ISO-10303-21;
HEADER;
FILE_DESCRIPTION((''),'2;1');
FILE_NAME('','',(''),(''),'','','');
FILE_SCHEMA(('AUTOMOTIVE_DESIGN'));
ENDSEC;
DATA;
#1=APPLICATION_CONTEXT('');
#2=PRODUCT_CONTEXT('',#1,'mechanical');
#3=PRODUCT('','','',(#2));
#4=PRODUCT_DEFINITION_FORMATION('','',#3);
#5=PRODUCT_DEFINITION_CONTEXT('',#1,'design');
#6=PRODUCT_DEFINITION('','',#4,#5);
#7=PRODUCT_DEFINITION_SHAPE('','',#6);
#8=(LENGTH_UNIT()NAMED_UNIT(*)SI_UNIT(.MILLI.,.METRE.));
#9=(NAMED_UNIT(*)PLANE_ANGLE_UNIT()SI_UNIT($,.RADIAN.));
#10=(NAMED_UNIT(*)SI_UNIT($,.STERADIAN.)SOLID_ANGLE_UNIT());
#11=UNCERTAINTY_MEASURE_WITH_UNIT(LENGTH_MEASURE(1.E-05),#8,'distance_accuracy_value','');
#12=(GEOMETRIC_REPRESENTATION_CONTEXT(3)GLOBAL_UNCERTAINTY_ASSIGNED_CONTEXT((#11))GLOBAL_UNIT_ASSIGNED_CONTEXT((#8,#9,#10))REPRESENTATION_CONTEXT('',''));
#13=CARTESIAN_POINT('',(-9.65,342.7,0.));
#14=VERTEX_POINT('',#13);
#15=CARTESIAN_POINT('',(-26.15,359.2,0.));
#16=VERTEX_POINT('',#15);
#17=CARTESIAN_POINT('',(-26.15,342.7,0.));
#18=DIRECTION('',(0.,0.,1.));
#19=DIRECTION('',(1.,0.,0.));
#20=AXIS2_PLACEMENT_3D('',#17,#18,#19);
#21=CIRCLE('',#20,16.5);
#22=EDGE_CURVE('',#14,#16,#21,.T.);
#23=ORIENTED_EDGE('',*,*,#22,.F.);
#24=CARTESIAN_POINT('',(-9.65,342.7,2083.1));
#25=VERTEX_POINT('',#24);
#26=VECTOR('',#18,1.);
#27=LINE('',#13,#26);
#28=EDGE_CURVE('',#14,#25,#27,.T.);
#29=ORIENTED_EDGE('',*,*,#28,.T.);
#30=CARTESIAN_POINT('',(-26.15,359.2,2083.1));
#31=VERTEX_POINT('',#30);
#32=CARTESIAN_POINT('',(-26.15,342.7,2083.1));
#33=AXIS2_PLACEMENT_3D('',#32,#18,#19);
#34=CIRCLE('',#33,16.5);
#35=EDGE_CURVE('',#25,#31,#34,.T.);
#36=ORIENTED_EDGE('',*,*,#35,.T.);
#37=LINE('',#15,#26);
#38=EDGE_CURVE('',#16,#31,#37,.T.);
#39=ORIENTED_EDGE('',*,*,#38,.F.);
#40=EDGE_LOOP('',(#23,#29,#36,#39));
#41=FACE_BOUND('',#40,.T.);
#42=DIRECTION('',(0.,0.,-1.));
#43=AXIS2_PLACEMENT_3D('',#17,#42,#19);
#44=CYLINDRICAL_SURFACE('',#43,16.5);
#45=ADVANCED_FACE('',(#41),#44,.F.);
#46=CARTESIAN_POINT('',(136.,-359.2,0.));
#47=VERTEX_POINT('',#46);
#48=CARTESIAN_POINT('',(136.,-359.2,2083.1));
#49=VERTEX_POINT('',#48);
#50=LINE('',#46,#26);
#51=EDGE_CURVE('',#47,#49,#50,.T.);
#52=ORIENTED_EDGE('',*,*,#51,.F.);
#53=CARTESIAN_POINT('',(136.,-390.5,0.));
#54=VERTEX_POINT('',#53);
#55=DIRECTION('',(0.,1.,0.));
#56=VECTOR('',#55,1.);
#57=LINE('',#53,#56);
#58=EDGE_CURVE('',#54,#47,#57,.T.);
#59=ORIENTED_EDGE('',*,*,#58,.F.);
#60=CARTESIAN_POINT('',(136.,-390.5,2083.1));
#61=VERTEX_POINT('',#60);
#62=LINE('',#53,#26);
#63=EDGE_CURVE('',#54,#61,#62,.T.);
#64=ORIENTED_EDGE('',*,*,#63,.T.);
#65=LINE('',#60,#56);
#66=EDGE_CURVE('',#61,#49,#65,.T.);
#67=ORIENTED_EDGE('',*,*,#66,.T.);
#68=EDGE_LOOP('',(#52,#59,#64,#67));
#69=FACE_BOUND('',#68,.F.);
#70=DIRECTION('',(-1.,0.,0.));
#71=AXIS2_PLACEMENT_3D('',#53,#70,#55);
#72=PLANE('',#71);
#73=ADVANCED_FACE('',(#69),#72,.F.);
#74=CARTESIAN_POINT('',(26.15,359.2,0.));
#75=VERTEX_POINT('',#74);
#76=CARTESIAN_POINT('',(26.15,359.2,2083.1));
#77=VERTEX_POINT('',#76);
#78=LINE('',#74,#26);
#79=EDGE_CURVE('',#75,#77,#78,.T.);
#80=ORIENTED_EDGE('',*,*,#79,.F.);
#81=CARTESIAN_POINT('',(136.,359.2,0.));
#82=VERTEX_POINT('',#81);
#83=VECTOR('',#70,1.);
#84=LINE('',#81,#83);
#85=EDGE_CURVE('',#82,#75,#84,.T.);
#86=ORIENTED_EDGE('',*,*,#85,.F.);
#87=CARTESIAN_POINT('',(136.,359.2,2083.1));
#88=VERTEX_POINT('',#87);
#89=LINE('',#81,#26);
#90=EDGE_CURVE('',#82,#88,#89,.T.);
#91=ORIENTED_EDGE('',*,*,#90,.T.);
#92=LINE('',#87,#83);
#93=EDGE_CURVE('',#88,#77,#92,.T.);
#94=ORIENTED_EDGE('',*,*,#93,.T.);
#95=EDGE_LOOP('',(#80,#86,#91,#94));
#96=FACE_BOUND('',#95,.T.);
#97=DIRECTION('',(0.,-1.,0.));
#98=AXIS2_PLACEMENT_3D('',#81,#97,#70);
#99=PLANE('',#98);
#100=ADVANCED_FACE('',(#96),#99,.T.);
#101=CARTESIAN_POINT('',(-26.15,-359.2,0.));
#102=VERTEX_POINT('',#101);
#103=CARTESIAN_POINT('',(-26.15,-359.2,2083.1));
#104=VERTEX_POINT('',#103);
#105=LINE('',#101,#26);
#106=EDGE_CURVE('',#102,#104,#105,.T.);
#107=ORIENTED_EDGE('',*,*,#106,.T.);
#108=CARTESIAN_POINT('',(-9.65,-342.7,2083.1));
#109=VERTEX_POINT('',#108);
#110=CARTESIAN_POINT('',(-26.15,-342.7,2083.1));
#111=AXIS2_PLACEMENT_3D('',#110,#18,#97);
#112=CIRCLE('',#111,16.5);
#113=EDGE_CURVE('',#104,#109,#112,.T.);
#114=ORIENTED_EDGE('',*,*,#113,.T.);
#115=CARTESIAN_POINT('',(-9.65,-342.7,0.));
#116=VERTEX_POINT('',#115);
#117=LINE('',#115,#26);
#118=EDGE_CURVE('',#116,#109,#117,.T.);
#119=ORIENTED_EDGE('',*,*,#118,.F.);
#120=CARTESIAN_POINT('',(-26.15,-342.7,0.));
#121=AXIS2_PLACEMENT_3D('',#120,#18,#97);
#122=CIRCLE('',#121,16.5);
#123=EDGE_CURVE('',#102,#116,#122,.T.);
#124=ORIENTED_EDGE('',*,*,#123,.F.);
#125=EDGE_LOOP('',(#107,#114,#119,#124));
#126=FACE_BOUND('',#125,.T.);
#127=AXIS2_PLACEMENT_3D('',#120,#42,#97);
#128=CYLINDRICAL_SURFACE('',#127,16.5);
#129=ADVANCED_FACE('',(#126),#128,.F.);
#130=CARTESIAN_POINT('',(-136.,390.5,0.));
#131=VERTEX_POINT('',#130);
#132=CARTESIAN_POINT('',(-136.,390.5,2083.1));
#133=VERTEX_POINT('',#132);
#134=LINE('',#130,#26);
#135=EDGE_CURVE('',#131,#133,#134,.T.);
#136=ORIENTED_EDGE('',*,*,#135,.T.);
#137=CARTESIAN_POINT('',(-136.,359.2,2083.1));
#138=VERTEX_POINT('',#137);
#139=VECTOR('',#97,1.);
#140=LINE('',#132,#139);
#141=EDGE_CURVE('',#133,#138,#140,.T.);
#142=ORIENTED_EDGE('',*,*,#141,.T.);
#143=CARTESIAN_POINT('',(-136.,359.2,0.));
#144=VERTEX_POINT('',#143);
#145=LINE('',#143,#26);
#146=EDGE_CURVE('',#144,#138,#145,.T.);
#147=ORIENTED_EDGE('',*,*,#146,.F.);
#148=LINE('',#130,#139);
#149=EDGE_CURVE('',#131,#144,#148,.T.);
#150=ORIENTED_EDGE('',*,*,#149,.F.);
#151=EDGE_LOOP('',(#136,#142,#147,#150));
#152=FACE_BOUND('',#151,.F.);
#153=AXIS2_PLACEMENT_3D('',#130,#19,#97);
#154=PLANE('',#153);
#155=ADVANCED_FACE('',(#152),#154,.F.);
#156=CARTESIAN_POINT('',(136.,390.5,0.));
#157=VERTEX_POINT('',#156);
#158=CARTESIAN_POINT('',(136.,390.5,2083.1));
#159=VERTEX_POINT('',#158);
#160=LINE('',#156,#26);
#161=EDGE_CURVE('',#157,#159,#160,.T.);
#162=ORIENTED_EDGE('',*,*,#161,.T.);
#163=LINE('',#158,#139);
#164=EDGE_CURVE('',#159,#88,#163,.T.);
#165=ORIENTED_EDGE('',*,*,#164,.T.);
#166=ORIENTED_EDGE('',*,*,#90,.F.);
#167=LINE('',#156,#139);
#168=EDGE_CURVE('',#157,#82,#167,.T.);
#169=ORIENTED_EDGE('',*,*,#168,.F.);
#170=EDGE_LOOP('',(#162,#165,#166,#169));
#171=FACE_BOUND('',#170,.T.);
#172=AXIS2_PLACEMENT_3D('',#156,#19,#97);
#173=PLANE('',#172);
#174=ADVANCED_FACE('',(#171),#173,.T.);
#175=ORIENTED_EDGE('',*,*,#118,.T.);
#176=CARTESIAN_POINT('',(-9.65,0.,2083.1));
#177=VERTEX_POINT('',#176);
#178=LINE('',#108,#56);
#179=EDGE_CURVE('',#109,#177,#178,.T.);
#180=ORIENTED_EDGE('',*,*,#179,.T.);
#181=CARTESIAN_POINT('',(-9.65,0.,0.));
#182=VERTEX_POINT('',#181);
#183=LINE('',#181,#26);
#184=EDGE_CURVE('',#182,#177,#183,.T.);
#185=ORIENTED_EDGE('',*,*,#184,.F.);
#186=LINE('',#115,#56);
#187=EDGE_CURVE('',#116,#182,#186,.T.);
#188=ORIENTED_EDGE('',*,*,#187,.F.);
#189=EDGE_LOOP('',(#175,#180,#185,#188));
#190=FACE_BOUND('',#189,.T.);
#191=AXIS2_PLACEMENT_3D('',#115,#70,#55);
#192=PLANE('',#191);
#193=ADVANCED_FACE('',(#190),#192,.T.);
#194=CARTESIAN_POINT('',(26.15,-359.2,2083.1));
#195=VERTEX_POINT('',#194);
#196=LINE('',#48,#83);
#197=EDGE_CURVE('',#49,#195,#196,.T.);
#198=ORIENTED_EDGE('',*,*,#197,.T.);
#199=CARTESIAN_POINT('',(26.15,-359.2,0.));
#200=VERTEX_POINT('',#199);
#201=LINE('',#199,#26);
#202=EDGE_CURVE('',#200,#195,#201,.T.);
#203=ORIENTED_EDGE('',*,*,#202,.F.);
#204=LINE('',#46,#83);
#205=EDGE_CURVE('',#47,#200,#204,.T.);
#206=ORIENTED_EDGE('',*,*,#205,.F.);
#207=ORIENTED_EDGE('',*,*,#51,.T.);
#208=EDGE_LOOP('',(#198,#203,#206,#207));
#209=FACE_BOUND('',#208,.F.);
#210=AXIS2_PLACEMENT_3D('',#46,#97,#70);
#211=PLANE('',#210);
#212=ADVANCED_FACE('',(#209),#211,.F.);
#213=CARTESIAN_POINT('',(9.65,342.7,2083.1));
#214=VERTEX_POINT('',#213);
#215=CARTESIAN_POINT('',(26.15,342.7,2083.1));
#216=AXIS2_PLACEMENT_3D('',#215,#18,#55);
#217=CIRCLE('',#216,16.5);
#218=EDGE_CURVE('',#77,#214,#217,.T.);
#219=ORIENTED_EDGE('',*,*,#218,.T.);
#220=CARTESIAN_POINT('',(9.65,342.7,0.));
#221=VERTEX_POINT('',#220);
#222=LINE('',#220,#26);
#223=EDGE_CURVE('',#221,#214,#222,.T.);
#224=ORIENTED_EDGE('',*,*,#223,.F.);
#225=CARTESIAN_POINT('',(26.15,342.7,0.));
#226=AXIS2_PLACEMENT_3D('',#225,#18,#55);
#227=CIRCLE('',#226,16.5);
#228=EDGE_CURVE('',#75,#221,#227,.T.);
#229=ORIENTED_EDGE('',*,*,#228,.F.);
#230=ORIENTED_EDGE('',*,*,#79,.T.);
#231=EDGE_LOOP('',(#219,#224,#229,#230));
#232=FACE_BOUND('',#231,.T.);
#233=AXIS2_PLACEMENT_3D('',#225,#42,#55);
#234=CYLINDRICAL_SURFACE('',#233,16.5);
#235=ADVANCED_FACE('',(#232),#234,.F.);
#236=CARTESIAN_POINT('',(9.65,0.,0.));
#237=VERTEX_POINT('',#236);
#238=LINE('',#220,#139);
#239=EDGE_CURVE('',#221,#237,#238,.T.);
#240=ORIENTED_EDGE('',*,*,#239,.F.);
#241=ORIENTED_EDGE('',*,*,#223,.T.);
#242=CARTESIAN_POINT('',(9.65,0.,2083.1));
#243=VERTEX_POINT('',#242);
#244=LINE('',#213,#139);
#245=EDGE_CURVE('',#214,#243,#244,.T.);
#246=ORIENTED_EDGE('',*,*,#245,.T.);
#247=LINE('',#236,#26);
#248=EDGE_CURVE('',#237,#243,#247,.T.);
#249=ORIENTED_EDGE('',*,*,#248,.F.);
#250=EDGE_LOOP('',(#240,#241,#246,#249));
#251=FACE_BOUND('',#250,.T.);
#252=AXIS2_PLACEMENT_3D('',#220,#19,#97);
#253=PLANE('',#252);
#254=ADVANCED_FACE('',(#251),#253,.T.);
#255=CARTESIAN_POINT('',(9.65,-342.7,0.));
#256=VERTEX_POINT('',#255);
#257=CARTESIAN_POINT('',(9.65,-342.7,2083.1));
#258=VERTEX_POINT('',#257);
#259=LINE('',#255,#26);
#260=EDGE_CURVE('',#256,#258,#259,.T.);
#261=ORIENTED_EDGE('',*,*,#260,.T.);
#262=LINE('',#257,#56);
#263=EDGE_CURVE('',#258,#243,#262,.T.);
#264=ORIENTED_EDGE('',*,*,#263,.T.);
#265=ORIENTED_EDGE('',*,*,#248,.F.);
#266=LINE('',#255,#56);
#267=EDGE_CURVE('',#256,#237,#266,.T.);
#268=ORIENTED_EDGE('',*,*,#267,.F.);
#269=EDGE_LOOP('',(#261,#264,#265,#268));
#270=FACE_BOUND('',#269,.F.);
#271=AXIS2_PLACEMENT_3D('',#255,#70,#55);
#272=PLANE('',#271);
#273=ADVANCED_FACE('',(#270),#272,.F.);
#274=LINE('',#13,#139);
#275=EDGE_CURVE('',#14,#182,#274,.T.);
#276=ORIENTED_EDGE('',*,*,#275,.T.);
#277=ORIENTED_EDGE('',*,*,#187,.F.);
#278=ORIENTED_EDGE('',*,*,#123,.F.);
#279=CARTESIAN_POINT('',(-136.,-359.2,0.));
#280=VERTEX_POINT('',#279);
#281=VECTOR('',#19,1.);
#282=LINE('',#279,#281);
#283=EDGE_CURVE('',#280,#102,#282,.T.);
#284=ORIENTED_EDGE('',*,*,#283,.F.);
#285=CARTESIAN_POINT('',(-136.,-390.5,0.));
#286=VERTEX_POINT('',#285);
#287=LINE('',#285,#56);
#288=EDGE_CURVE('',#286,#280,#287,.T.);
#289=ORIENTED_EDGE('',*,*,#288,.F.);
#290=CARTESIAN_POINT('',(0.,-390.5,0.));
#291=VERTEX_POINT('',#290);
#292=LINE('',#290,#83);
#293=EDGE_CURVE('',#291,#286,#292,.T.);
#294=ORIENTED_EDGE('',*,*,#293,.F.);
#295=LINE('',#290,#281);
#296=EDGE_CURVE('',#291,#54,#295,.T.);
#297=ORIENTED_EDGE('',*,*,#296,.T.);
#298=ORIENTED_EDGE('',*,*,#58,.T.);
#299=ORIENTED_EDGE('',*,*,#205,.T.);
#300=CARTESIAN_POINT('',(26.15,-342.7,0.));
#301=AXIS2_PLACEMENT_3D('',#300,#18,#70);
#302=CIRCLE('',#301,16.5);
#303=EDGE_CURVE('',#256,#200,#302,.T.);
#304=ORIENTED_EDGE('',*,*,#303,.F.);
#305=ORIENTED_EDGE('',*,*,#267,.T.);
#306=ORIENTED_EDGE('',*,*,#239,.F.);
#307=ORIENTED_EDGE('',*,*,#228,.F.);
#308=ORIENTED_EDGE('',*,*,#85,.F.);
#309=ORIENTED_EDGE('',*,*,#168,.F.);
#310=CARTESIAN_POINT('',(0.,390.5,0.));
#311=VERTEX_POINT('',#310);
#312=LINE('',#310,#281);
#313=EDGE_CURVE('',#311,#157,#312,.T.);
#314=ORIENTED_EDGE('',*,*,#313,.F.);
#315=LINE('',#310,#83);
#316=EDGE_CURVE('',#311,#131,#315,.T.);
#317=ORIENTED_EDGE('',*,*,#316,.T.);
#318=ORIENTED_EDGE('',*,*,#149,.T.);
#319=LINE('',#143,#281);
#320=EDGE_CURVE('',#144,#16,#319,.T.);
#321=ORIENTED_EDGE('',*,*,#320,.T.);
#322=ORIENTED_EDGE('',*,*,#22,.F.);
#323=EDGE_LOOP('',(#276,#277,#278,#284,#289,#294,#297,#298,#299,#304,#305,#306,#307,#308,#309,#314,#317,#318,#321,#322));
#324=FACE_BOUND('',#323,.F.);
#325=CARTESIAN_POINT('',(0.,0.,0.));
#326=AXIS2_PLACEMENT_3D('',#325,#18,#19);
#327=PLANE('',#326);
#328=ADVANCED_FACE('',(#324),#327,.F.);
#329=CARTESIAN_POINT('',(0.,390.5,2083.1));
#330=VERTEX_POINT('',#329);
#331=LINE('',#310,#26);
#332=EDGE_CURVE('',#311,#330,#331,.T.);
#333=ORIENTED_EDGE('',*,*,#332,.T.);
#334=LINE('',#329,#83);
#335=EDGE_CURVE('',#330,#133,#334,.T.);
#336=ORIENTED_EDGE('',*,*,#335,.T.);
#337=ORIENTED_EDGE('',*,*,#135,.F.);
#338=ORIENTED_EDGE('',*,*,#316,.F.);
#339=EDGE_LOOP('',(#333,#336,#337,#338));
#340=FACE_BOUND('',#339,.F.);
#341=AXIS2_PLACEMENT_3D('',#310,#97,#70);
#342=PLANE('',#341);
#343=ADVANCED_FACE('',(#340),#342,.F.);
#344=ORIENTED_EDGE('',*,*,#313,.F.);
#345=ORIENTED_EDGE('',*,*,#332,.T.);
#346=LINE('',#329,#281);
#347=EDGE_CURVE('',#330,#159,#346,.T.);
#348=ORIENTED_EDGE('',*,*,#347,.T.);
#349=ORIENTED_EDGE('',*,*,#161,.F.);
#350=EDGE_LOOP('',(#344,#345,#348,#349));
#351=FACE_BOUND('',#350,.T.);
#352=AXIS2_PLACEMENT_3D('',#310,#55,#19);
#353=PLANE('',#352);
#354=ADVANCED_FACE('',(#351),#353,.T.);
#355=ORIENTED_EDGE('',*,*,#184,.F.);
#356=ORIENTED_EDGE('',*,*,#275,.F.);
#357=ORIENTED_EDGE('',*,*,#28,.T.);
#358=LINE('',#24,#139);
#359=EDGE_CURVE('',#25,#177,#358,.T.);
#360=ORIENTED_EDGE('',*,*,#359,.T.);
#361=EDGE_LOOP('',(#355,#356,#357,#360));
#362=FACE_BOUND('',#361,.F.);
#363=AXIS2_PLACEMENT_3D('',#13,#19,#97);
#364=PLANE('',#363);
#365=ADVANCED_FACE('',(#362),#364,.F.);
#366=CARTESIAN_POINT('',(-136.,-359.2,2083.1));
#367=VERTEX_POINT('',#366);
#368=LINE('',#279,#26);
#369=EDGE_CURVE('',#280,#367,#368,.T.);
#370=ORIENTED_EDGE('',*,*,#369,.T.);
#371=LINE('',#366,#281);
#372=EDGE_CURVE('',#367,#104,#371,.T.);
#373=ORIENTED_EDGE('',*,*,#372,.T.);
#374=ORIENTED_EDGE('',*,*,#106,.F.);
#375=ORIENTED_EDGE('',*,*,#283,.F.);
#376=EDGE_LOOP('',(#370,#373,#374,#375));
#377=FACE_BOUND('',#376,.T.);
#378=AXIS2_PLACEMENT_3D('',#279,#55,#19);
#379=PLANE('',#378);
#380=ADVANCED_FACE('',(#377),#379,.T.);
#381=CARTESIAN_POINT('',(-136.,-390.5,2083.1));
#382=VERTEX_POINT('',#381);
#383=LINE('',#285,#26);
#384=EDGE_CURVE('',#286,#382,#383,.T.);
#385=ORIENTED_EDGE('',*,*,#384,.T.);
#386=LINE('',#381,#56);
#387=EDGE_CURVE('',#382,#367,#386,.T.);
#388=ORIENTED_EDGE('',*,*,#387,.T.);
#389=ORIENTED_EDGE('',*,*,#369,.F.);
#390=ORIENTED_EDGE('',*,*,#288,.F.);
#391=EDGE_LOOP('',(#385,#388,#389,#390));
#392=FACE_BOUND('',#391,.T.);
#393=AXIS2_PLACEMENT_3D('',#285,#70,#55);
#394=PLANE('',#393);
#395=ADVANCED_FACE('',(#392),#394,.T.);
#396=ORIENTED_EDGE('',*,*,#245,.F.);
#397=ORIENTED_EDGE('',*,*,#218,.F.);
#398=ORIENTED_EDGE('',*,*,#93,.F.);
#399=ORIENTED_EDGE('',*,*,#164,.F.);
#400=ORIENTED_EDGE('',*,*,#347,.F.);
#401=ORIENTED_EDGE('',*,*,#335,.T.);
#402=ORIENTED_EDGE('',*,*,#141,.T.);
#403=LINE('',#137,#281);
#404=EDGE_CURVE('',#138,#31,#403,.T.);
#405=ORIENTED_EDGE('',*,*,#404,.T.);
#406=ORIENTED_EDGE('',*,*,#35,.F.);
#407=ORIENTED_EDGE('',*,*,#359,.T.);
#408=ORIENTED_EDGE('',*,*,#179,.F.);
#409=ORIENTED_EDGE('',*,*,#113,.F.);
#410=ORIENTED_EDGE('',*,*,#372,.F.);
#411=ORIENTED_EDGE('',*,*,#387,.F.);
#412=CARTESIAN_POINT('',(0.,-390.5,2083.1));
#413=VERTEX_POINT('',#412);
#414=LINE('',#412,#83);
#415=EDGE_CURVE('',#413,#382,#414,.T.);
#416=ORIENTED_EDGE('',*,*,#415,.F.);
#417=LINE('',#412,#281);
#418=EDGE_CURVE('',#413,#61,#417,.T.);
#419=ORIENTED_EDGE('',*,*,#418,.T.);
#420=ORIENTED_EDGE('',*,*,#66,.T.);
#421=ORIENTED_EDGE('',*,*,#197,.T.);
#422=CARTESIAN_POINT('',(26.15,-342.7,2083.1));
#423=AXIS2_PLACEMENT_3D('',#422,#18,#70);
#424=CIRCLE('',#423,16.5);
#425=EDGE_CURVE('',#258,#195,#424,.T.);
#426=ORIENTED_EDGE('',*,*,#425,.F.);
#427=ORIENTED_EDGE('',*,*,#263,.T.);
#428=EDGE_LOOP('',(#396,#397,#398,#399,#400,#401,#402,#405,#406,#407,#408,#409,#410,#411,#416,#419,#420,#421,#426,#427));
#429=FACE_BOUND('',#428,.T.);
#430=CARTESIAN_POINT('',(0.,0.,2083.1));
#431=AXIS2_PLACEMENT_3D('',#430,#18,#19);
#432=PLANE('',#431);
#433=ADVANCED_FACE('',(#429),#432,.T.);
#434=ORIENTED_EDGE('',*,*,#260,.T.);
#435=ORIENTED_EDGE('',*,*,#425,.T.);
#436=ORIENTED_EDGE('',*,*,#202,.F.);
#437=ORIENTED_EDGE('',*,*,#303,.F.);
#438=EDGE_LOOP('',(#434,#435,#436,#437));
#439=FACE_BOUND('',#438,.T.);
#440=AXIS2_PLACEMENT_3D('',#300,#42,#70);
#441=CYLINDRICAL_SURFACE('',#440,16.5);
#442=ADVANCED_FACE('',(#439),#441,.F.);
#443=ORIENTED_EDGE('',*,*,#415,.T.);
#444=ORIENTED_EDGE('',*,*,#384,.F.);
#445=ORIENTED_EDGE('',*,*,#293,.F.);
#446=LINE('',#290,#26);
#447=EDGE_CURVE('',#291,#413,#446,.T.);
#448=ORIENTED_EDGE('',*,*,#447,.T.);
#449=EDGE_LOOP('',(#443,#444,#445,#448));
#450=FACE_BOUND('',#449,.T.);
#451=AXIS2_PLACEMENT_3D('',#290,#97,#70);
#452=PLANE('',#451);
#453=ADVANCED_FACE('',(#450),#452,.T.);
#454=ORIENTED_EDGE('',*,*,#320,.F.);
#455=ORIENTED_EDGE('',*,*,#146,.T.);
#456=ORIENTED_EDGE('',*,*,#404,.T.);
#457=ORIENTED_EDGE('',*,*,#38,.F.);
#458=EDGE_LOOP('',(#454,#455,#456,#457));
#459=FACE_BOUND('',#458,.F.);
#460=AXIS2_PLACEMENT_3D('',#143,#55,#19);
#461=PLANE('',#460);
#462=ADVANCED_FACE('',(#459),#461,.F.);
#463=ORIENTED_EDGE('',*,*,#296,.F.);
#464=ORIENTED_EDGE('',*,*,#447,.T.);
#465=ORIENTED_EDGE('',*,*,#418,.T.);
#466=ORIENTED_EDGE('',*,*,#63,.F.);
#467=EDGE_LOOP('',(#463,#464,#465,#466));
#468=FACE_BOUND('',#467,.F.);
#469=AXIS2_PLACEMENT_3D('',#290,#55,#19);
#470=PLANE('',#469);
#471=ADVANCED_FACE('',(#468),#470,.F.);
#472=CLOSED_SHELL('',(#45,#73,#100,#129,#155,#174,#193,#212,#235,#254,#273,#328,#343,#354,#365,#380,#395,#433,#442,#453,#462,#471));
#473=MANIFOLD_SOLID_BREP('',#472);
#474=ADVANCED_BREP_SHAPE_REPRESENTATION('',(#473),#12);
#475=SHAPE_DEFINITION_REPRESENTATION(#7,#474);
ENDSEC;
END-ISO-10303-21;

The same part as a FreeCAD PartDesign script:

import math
import FreeCAD as App
import Part
import Sketcher
Q = App.Units.Quantity

doc = App.newDocument("Part")
body = doc.addObject("PartDesign::Body", "Body")

# Sketch on XY plane
sketch1 = body.newObject("Sketcher::SketchObject", "Sketch")
sketch1.AttachmentSupport = (doc.getObject("XY_Plane"), [""])
sketch1.MapMode = "FlatFace"
sketch1.addGeometry([
    Part.LineSegment(App.Vector(-136, -359.2, 0), App.Vector(-136, -390.5, 0)),  # 0
    Part.LineSegment(App.Vector(-136, -390.5, 0), App.Vector(136, -390.5, 0)),  # 1
    Part.LineSegment(App.Vector(136, -390.5, 0), App.Vector(136, -359.2, 0)),  # 2
    Part.LineSegment(App.Vector(136, -359.2, 0), App.Vector(26.15, -359.2, 0)),  # 3
    Part.ArcOfCircle(Part.Circle(App.Vector(26.15, -342.7, 0), App.Vector(0, 0, 1), 16.5), math.radians(180), math.radians(270)),  # 4
    Part.LineSegment(App.Vector(9.65, -342.7, 0), App.Vector(9.65, 342.7, 0)),  # 5
    Part.ArcOfCircle(Part.Circle(App.Vector(26.15, 342.7, 0), App.Vector(0, 0, 1), 16.5), math.radians(90), math.radians(180)),  # 6
    Part.LineSegment(App.Vector(26.15, 359.2, 0), App.Vector(136, 359.2, 0)),  # 7
    Part.LineSegment(App.Vector(136, 359.2, 0), App.Vector(136, 390.5, 0)),  # 8
    Part.LineSegment(App.Vector(136, 390.5, 0), App.Vector(-136, 390.5, 0)),  # 9
    Part.LineSegment(App.Vector(-136, 390.5, 0), App.Vector(-136, 359.2, 0)),  # 10
    Part.LineSegment(App.Vector(-136, 359.2, 0), App.Vector(-26.15, 359.2, 0)),  # 11
    Part.ArcOfCircle(Part.Circle(App.Vector(-26.15, 342.7, 0), App.Vector(0, 0, 1), 16.5), math.radians(0), math.radians(90)),  # 12
    Part.LineSegment(App.Vector(-9.65, 342.7, 0), App.Vector(-9.65, -342.7, 0)),  # 13
    Part.ArcOfCircle(Part.Circle(App.Vector(-26.15, -342.7, 0), App.Vector(0, 0, 1), 16.5), math.radians(-90), math.radians(0)),  # 14
    Part.LineSegment(App.Vector(-26.15, -359.2, 0), App.Vector(-136, -359.2, 0)),  # 15
], False)
sketch1.addConstraint([
    Sketcher.Constraint("Coincident", 0, 2, 1, 1),
    Sketcher.Constraint("Coincident", 1, 2, 2, 1),
    Sketcher.Constraint("Coincident", 2, 2, 3, 1),
    Sketcher.Constraint("Tangent", 3, 2, 4, 2),
    Sketcher.Constraint("Tangent", 4, 1, 5, 1),
    Sketcher.Constraint("Tangent", 5, 2, 6, 2),
    Sketcher.Constraint("Tangent", 6, 1, 7, 1),
    Sketcher.Constraint("Coincident", 7, 2, 8, 1),
    Sketcher.Constraint("Coincident", 8, 2, 9, 1),
    Sketcher.Constraint("Coincident", 9, 2, 10, 1),
    Sketcher.Constraint("Coincident", 10, 2, 11, 1),
    Sketcher.Constraint("Tangent", 11, 2, 12, 2),
    Sketcher.Constraint("Tangent", 12, 1, 13, 1),
    Sketcher.Constraint("Tangent", 13, 2, 14, 2),
    Sketcher.Constraint("Tangent", 14, 1, 15, 1),
    Sketcher.Constraint("Coincident", 15, 2, 0, 1),
    Sketcher.Constraint("Vertical", 0),
    Sketcher.Constraint("Horizontal", 1),
    Sketcher.Constraint("Vertical", 2),
    Sketcher.Constraint("Horizontal", 3),
    Sketcher.Constraint("Vertical", 5),
    Sketcher.Constraint("Horizontal", 7),
    Sketcher.Constraint("Vertical", 8),
    Sketcher.Constraint("Horizontal", 9),
    Sketcher.Constraint("Vertical", 10),
    Sketcher.Constraint("Horizontal", 11),
    Sketcher.Constraint("Vertical", 13),
    Sketcher.Constraint("Horizontal", 15),
    Sketcher.Constraint("Equal", 4, 6),
    Sketcher.Constraint("Equal", 6, 12),
    Sketcher.Constraint("Equal", 12, 14),
    Sketcher.Constraint("Symmetric", 4, 3, 12, 3, -1, 1),
    Sketcher.Constraint("Symmetric", 0, 2, 8, 2, -1, 1),
    Sketcher.Constraint("Symmetric", 7, 2, 10, 2, -2),
    Sketcher.Constraint("Symmetric", 2, 2, 15, 2, -2),
    Sketcher.Constraint("Radius", 4, Q("16.5 mm")),
    Sketcher.Constraint("DistanceY", 0, 2, 0, 1, Q("31.3 mm")),
    Sketcher.Constraint("DistanceX", 0, 2, -1, 1, Q("136 mm")),
    Sketcher.Constraint("DistanceY", 0, 2, -1, 1, Q("390.5 mm")),
    Sketcher.Constraint("DistanceX", -1, 1, 4, 1, Q("9.65 mm")),
])
pad1 = body.newObject("PartDesign::Pad", "Pad")
pad1.Profile = sketch1
pad1.Length = 2083.1

doc.recompute()
